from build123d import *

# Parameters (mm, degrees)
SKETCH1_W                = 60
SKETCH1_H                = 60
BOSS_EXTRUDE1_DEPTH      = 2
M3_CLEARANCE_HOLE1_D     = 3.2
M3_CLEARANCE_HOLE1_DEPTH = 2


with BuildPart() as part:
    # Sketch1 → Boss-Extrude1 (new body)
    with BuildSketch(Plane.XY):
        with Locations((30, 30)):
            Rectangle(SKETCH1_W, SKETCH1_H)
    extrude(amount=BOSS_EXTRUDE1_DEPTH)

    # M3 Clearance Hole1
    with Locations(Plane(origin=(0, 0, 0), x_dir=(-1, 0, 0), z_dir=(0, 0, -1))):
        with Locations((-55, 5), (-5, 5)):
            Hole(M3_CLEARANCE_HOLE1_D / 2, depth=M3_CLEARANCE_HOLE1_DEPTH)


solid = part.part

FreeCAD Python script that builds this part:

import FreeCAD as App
import Part
import Sketcher
Q = App.Units.Quantity

doc = App.newDocument("Part")
body = doc.addObject("PartDesign::Body", "Body")

sketch1 = body.newObject("Sketcher::SketchObject", "Sketch")
sketch1.AttachmentSupport = (doc.getObject("XY_Plane"), [""])
sketch1.MapMode = "FlatFace"
sketch1.addGeometry([
    Part.LineSegment(App.Vector(0, 60, 0), App.Vector(0, 0, 0)),
    Part.LineSegment(App.Vector(0, 0, 0), App.Vector(60, 0, 0)),
    Part.LineSegment(App.Vector(60, 0, 0), App.Vector(60, 60, 0)),
    Part.LineSegment(App.Vector(60, 60, 0), App.Vector(0, 60, 0)),
], False)
sketch1.addConstraint([
    Sketcher.Constraint("Coincident", 0, 2, 1, 1),
    Sketcher.Constraint("Coincident", 1, 2, 2, 1),
    Sketcher.Constraint("Coincident", 2, 2, 3, 1),
    Sketcher.Constraint("Coincident", 3, 2, 0, 1),
    Sketcher.Constraint("Vertical", 0),
    Sketcher.Constraint("Horizontal", 1),
    Sketcher.Constraint("Vertical", 2),
    Sketcher.Constraint("Horizontal", 3),
    Sketcher.Constraint("Coincident", 0, 2, -1, 1),
    Sketcher.Constraint("Equal", 3, 0),
    Sketcher.Constraint("DistanceX", 1, 1, 1, 2, Q("60 mm")),
])
pad1 = body.newObject("PartDesign::Pad", "Pad")
pad1.Profile = sketch1
pad1.Length = 2

sketch2 = body.newObject("Sketcher::SketchObject", "Sketch001")
sketch2.AttachmentSupport = (doc.getObject("XY_Plane"), [""])
sketch2.MapMode = "FlatFace"
sketch2.addGeometry([
    Part.Circle(App.Vector(55, 5, 0), App.Vector(0, 0, 1), 1.6),
    Part.Circle(App.Vector(5, 5, 0), App.Vector(0, 0, 1), 1.6),
], False)
sketch2.addConstraint([
    Sketcher.Constraint("Equal", 0, 1),
    Sketcher.Constraint("Horizontal", 0, 3, 1, 3),
    Sketcher.Constraint("Diameter", 0, Q("3.2 mm")),
    Sketcher.Constraint("DistanceX", -1, 1, 0, 3, Q("55 mm")),
    Sketcher.Constraint("DistanceY", -1, 1, 0, 3, Q("5 mm")),
    Sketcher.Constraint("DistanceX", -1, 1, 1, 3, Q("5 mm")),
])
doc.recompute()
hole = body.newObject("PartDesign::Hole", "Hole")
hole.Profile = sketch2
hole.ThreadType = "None"
hole.Diameter = 3.2
hole.DepthType = "Dimension"
hole.Depth = 2
hole.DrillPoint = "Flat"
hole.Reversed = True

doc.recompute()
